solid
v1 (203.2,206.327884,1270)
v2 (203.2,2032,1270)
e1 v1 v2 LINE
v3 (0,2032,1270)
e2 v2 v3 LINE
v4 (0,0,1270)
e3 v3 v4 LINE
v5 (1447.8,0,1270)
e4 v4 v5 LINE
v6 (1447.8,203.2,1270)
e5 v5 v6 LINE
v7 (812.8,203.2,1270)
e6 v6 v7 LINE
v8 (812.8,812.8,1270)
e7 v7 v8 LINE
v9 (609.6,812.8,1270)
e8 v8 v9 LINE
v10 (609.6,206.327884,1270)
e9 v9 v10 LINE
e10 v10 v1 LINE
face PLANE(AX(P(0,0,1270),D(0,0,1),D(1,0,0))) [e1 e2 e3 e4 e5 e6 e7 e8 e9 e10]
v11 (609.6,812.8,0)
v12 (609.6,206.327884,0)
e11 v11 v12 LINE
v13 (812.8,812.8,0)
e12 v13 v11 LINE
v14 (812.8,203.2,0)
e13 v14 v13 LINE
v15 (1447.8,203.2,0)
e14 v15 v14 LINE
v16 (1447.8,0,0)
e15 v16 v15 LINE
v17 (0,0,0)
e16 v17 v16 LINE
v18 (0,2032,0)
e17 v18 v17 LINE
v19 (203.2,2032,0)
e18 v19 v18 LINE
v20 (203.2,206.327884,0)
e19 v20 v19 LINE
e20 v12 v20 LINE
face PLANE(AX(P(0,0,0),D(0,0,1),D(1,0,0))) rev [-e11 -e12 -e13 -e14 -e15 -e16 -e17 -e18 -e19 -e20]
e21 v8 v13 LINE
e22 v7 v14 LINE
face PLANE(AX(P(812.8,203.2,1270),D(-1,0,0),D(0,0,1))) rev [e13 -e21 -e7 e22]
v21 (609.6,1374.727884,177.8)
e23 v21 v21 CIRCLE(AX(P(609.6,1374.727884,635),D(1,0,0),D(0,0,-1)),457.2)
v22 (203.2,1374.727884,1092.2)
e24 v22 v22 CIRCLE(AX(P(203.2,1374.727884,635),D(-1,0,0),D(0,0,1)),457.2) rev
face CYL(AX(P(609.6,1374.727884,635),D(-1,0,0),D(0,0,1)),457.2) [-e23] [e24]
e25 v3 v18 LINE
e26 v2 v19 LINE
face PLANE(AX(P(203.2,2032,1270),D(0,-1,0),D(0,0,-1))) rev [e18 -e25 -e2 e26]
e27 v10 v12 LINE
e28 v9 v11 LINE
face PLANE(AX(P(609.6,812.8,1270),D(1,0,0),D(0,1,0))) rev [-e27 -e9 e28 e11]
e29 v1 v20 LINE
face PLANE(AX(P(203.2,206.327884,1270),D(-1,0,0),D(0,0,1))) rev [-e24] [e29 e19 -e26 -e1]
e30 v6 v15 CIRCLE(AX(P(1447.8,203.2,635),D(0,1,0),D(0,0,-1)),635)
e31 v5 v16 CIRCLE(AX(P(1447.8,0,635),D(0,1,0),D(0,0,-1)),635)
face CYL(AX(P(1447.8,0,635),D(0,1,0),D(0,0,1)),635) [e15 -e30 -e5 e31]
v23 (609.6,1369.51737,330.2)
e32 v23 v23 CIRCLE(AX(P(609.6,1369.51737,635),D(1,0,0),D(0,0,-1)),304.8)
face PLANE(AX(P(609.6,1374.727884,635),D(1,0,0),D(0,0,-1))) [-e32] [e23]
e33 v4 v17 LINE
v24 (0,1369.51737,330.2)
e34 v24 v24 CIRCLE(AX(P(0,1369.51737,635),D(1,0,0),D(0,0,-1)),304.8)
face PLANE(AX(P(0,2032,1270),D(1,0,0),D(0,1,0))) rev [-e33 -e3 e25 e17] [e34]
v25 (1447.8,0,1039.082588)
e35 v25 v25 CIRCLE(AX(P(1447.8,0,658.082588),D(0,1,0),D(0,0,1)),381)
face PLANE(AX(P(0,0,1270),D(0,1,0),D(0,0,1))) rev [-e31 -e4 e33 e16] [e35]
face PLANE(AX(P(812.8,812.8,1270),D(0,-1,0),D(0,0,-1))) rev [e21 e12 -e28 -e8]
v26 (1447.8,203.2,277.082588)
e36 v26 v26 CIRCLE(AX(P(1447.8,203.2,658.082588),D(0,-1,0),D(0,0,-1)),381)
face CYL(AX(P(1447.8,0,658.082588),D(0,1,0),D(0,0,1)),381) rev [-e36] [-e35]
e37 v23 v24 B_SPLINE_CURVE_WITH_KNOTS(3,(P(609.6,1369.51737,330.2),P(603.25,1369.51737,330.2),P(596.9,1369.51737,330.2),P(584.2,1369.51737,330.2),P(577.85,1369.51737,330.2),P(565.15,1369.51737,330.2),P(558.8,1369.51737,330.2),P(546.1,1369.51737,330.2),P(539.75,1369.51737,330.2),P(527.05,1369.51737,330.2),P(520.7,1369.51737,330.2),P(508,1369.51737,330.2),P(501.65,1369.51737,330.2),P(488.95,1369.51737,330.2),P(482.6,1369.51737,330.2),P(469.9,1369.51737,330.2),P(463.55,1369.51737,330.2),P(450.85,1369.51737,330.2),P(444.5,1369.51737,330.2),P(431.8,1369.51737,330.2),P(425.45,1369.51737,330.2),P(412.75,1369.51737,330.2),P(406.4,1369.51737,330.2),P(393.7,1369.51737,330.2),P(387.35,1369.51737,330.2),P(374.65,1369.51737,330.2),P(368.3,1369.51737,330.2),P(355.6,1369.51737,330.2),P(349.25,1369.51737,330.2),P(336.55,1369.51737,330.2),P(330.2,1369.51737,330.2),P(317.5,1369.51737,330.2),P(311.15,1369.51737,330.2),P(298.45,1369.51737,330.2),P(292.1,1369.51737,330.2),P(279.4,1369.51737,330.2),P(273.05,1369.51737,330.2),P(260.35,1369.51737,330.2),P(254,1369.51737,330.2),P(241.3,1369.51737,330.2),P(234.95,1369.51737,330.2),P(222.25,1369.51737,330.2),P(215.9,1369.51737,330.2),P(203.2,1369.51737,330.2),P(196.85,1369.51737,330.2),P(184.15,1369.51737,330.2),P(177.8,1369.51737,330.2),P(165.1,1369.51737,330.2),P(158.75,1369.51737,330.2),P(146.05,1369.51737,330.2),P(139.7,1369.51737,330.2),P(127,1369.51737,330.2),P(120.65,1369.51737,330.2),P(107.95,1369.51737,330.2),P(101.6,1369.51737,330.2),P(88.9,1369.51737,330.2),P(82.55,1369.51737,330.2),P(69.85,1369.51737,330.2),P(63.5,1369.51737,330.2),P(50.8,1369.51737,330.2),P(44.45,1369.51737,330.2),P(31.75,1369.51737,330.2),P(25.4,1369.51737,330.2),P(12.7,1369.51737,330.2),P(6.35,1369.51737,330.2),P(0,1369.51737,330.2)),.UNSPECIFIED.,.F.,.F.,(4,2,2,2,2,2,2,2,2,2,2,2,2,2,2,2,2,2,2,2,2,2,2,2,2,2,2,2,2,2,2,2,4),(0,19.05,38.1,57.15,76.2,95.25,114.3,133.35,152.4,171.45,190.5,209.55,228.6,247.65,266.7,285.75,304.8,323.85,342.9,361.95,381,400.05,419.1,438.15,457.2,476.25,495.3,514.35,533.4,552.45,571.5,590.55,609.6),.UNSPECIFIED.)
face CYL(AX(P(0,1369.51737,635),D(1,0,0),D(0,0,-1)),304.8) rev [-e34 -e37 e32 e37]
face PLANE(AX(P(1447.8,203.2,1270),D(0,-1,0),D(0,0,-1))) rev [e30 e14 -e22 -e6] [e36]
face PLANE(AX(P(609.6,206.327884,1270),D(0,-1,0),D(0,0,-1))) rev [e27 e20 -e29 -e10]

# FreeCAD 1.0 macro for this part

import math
import FreeCAD as App
import Part
import Sketcher
Q = App.Units.Quantity


def add_polygon(sketch, points):
    """Adds a closed chain of lines whose ends are joined by coincident constraints."""
    first, n = sketch.GeometryCount, len(points)
    for a, b in zip(points, points[1:] + points[:1]):
        sketch.addGeometry(Part.LineSegment(App.Vector(*a, 0), App.Vector(*b, 0)), False)
    for i in range(n):
        sketch.addConstraint(Sketcher.Constraint("Coincident", first + i, 2, first + (i + 1) % n, 1))

doc = App.newDocument("Part")
params = doc.addObject("Spreadsheet::Sheet", "Params")
for row, (alias, value) in enumerate([
    ("sketch1_width", "57 in"),
    ("sketch1_width2", "25 in"),
    ("sketch1_width3", "8 in"),
    ("sketch1_height", "80 in"),
    ("sketch1_height2", "24 in"),
    ("pad1_length", "50 in"),
    ("sketch2_radius", "25 in"),
    ("pad2_length", "8 in"),
    ("sketch3_diameter", "30 in"),
    ("sketch4_diameter", "36 in"),
    ("pad3_length", "16 in"),
    ("sketch5_diameter", "24 in"),
], start=1):
    params.set(f"A{row}", alias)
    params.set(f"B{row}", "=" + value)
    params.setAlias(f"B{row}", alias)

body = doc.addObject("PartDesign::Body", "Body")

sketch1 = body.newObject("Sketcher::SketchObject", "Sketch")
sketch1.AttachmentSupport = (doc.getObject("XY_Plane"), [""])
sketch1.MapMode = "FlatFace"
add_polygon(sketch1, [(0, 2032), (0, 0), (1448, 0), (1448, 203), (813, 203), (813, 813), (610, 813), (610, 206), (203, 206), (203, 2032)])
sketch1.addConstraint([
    Sketcher.Constraint("Vertical", 0),
    Sketcher.Constraint("Horizontal", 1),
    Sketcher.Constraint("Vertical", 2),
    Sketcher.Constraint("Horizontal", 3),
    Sketcher.Constraint("Vertical", 4),
    Sketcher.Constraint("Horizontal", 5),
    Sketcher.Constraint("Vertical", 6),
    Sketcher.Constraint("Horizontal", 7),
    Sketcher.Constraint("Vertical", 8),
    Sketcher.Constraint("Horizontal", 9),
    Sketcher.Constraint("Coincident", 0, 2, -1, 1),
    Sketcher.Constraint("Equal", 5, 9),
    Sketcher.Constraint("Equal", 9, 2),
    Sketcher.Constraint("DistanceX", 1, 1, 1, 2, Q("57 in")),
    Sketcher.Constraint("DistanceX", 3, 2, 3, 1, Q("25 in")),
    Sketcher.Constraint("DistanceX", 5, 2, 5, 1, Q("8 in")),
    Sketcher.Constraint("DistanceY", 0, 2, 0, 1, Q("80 in")),
    Sketcher.Constraint("DistanceY", 4, 1, 4, 2, Q("24 in")),
    Sketcher.Constraint("DistanceY", 6, 2, 6, 1, 606.472116),
])
sketch1.setExpression("Constraints[23]", "Params.sketch1_width")
sketch1.setExpression("Constraints[24]", "Params.sketch1_width2")
sketch1.setExpression("Constraints[25]", "Params.sketch1_width3")
sketch1.setExpression("Constraints[26]", "Params.sketch1_height")
sketch1.setExpression("Constraints[27]", "Params.sketch1_height2")
pad1 = body.newObject("PartDesign::Pad", "Pad")
pad1.Profile = sketch1
pad1.setExpression("Length", "Params.pad1_length")

sketch2 = body.newObject("Sketcher::SketchObject", "Sketch001")
sketch2.AttachmentSupport = (doc.getObject("XZ_Plane"), [""])
sketch2.MapMode = "FlatFace"
sketch2.AttachmentOffset = App.Placement(App.Vector(0, 0, -8 * 25.4), App.Rotation())
sketch2.addGeometry([
    Part.LineSegment(App.Vector(1448, 0, 0), App.Vector(1448, 1270, 0)),
    Part.ArcOfCircle(Part.Circle(App.Vector(1448, 635, 0), App.Vector(0, 0, 1), 635), math.radians(-90), math.radians(90)),
], False)
sketch2.addConstraint([
    Sketcher.Constraint("Coincident", 0, 1, 1, 1),
    Sketcher.Constraint("Coincident", 1, 2, 0, 2),
    Sketcher.Constraint("Vertical", 0),
    Sketcher.Constraint("PointOnObject", 0, 1, -1),
    Sketcher.Constraint("Vertical", 1, 3, 0, 1),
    Sketcher.Constraint("Radius", 1, Q("25 in")),
    Sketcher.Constraint("DistanceX", -1, 1, 1, 3, Q("57 in")),
])
sketch2.setExpression("Constraints[5]", "Params.sketch2_radius")
pad2 = body.newObject("PartDesign::Pad", "Pad001")
pad2.Profile = sketch2
pad2.setExpression("Length", "Params.pad2_length")

sketch3 = body.newObject("Sketcher::SketchObject", "Sketch002")
sketch3.AttachmentSupport = (doc.getObject("XZ_Plane"), [""])
sketch3.MapMode = "FlatFace"
sketch3.AttachmentOffset = App.Placement(App.Vector(0, 0, -8 * 25.4), App.Rotation())
sketch3.addGeometry(Part.Circle(App.Vector(1448, 658, 0), App.Vector(0, 0, 1), 381), False)
sketch3.addConstraint([
    Sketcher.Constraint("Diameter", 0, Q("30 in")),
    Sketcher.Constraint("DistanceX", -1, 1, 0, 3, Q("57 in")),
    Sketcher.Constraint("DistanceY", -1, 1, 0, 3, 658.082588),
])
sketch3.setExpression("Constraints[0]", "Params.sketch3_diameter")
pocket1 = body.newObject("PartDesign::Pocket", "Pocket")
pocket1.Profile = sketch3
pocket1.Type = "ThroughAll"
pocket1.Midplane = True

sketch4 = body.newObject("Sketcher::SketchObject", "Sketch003")
sketch4.AttachmentSupport = (doc.getObject("YZ_Plane"), [""])
sketch4.MapMode = "FlatFace"
sketch4.AttachmentOffset = App.Placement(App.Vector(0, 0, 8 * 25.4), App.Rotation())
sketch4.addGeometry(Part.Circle(App.Vector(1375, 635, 0), App.Vector(0, 0, 1), 457), False)
sketch4.addConstraint([
    Sketcher.Constraint("Diameter", 0, Q("36 in")),
    Sketcher.Constraint("DistanceY", -1, 1, 0, 3, Q("25 in")),
    Sketcher.Constraint("DistanceX", -1, 1, 0, 3, 1374.727884),
])
sketch4.setExpression("Constraints[0]", "Params.sketch4_diameter")
pad3 = body.newObject("PartDesign::Pad", "Pad002")
pad3.Profile = sketch4
pad3.setExpression("Length", "Params.pad3_length")

sketch5 = body.newObject("Sketcher::SketchObject", "Sketch004")
sketch5.AttachmentSupport = (doc.getObject("YZ_Plane"), [""])
sketch5.MapMode = "FlatFace"
sketch5.AttachmentOffset = App.Placement(App.Vector(0, 0, 24 * 25.4), App.Rotation())
sketch5.addGeometry(Part.Circle(App.Vector(1370, 635, 0), App.Vector(0, 0, 1), 305), False)
sketch5.addConstraint([
    Sketcher.Constraint("Diameter", 0, Q("24 in")),
    Sketcher.Constraint("DistanceY", -1, 1, 0, 3, Q("25 in")),
    Sketcher.Constraint("DistanceX", -1, 1, 0, 3, 1369.51737),
])
sketch5.setExpression("Constraints[0]", "Params.sketch5_diameter")
pocket2 = body.newObject("PartDesign::Pocket", "Pocket001")
pocket2.Profile = sketch5
pocket2.Type = "ThroughAll"
pocket2.Midplane = True

doc.recompute()
